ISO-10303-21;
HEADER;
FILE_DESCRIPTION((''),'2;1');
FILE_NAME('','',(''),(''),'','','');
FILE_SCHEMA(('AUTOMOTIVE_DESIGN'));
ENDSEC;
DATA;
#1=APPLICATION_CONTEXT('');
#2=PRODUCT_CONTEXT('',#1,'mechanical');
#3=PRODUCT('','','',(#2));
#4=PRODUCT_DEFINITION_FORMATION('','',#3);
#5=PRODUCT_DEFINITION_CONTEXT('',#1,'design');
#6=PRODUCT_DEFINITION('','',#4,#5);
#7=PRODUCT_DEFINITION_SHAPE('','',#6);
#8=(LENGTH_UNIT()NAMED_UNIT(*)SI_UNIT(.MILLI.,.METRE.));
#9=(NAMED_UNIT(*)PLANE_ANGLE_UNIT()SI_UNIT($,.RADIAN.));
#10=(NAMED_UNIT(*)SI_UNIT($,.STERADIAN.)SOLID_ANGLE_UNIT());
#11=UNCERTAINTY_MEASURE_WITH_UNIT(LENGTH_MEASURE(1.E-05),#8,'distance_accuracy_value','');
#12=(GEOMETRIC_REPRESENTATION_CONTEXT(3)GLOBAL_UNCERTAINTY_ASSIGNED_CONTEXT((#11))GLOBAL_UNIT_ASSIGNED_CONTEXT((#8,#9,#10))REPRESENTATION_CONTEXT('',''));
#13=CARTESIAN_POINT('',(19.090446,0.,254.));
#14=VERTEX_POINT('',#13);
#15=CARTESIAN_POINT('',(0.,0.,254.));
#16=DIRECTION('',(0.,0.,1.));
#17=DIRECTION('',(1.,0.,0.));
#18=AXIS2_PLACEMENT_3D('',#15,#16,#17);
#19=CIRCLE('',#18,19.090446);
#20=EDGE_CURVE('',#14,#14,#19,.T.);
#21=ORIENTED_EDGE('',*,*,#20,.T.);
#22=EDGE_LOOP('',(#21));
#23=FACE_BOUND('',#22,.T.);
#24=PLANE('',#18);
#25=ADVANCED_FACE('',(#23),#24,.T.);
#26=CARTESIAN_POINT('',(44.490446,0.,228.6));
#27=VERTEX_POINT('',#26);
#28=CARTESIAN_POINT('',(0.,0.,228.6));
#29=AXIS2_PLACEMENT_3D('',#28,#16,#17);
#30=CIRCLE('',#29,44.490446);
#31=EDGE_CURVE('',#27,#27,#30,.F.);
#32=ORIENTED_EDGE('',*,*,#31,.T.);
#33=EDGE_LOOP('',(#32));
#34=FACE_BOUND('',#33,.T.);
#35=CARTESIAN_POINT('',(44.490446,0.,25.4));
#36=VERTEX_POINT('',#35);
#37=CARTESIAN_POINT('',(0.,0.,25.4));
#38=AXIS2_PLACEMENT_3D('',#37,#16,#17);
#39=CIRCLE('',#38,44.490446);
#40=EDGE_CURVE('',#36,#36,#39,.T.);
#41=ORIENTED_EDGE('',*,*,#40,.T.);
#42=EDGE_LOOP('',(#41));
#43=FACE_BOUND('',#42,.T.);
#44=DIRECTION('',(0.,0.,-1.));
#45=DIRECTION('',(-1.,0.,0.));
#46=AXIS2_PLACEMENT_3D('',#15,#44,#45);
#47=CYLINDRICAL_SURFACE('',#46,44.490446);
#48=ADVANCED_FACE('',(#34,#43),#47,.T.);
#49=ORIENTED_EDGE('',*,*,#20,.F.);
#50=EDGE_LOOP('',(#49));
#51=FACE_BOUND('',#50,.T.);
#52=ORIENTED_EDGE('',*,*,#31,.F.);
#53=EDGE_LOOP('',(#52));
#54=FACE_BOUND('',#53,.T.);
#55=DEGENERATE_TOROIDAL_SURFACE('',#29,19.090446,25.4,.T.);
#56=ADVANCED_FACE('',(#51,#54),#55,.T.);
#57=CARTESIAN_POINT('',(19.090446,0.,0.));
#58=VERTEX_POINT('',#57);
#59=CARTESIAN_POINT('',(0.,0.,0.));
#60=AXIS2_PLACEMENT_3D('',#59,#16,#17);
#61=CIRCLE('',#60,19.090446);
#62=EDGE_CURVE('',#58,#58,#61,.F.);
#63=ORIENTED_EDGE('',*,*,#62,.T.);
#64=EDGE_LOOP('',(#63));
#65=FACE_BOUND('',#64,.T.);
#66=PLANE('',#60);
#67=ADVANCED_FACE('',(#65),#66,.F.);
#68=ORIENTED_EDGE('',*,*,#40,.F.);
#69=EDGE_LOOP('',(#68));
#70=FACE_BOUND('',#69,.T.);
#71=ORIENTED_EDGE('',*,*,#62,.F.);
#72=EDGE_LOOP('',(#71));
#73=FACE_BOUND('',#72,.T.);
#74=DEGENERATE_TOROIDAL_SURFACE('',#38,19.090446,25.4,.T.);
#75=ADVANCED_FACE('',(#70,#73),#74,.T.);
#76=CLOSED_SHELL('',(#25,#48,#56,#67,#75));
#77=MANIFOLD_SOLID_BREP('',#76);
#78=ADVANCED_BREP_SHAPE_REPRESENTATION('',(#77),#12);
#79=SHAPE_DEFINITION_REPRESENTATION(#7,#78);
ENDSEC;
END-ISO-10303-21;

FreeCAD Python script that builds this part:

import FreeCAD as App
import Part
import Sketcher

V = App.Vector
Q = App.Units.Quantity


def edges_at(feature, points):
    """Names of the edges that pass closest to the given points."""
    edges = feature.Shape.Edges
    near = lambda p: min(range(len(edges)), key=lambda i: edges[i].distToShape(Part.Vertex(*p))[0])
    return sorted({f"Edge{near(p) + 1}" for p in points})

doc = App.newDocument("Part")
body = doc.addObject("PartDesign::Body", "Body")

sketch1 = body.newObject("Sketcher::SketchObject", "Sketch")
sketch1.AttachmentSupport = (doc.getObject("XY_Plane"), [""])
sketch1.MapMode = "FlatFace"
sketch1.addGeometry(Part.Circle(V(0, 0, 0), V(0, 0, 1), 44.490446), False)
sketch1.addConstraint([
    Sketcher.Constraint("Coincident", 0, 3, -1, 1),
    Sketcher.Constraint("Diameter", 0, Q("88.980892 mm")),
])
pad1 = body.newObject("PartDesign::Pad", "Pad")
pad1.Profile = sketch1
pad1.Length = Q("10 in")
doc.recompute()

fillet = body.newObject("PartDesign::Fillet", "Fillet")
fillet.Base = (pad1, edges_at(pad1, [(-44.49, 0, 0), (-44.49, 0, 254)]))
fillet.Radius = Q("1 in")

doc.recompute()
